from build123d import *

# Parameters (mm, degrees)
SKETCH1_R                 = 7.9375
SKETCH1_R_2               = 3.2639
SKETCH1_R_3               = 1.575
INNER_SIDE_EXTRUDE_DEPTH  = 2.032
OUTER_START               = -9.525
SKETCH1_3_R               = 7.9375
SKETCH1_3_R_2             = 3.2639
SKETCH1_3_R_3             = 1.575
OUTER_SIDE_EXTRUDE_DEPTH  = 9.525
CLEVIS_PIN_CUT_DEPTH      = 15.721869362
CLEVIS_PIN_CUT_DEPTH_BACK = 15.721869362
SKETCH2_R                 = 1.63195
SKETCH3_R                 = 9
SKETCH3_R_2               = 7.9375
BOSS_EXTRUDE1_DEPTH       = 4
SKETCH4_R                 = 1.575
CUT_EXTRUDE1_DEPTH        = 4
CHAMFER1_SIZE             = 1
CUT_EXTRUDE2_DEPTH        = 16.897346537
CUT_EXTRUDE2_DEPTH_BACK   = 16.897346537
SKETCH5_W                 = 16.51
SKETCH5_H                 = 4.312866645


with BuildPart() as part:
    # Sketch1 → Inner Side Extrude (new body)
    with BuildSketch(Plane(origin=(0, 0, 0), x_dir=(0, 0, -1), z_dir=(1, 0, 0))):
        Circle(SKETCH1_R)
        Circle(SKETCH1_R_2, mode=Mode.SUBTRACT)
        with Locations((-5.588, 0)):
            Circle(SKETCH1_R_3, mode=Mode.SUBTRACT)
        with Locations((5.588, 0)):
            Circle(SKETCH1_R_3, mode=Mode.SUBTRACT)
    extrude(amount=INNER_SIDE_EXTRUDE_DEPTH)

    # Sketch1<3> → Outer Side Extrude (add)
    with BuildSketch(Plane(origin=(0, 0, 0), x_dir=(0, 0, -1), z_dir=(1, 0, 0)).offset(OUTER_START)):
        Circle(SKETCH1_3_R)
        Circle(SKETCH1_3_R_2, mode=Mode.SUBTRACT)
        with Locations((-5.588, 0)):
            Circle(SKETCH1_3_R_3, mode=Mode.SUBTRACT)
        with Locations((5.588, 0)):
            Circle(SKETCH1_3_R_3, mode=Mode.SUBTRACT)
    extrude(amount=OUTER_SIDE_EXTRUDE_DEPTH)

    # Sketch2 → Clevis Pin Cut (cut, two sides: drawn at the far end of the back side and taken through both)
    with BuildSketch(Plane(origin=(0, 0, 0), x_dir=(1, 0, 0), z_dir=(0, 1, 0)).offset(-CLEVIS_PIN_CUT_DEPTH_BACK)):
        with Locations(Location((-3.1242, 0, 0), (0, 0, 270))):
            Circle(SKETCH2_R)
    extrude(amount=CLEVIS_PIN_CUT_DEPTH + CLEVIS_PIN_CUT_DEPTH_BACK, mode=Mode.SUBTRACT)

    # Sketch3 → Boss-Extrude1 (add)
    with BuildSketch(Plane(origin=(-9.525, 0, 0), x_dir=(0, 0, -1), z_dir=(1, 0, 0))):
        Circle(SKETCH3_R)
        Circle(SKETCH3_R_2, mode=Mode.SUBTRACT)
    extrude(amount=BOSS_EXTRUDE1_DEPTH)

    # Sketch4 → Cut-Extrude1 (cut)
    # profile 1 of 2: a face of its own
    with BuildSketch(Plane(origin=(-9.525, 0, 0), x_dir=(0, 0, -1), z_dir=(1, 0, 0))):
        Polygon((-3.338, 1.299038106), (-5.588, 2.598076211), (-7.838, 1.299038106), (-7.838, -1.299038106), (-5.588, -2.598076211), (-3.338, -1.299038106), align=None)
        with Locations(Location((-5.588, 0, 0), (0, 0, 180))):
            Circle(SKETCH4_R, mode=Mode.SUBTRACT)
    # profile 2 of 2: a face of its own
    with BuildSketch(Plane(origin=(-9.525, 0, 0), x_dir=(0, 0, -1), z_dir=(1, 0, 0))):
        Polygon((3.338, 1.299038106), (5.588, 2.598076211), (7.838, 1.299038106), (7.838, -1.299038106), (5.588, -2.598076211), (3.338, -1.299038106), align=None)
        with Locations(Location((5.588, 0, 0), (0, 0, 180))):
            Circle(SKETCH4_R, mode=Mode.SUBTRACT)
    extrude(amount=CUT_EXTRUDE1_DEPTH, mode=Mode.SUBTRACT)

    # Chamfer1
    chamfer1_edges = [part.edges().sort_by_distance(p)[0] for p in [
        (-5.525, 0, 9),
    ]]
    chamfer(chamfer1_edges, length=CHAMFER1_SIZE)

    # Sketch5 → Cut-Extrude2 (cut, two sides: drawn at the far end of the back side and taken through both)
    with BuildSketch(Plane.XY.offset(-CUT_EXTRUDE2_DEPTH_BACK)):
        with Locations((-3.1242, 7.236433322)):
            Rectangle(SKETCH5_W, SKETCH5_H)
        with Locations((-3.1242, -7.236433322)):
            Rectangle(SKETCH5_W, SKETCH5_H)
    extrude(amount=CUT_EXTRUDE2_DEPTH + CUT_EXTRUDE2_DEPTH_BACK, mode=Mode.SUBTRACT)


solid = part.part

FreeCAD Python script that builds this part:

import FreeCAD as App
import Part
import Sketcher

V = App.Vector
Q = App.Units.Quantity


def edges_at(feature, points):
    """Names of the edges that pass closest to the given points."""
    edges = feature.Shape.Edges
    near = lambda p: min(range(len(edges)), key=lambda i: edges[i].distToShape(Part.Vertex(*p))[0])
    return sorted({f"Edge{near(p) + 1}" for p in points})


def add_polygon(sketch, points):
    """Adds a closed chain of lines whose ends are joined by coincident constraints."""
    first, n = sketch.GeometryCount, len(points)
    for a, b in zip(points, points[1:] + points[:1]):
        sketch.addGeometry(Part.LineSegment(App.Vector(*a, 0), App.Vector(*b, 0)), False)
    for i in range(n):
        sketch.addConstraint(Sketcher.Constraint("Coincident", first + i, 2, first + (i + 1) % n, 1))

doc = App.newDocument("Part")
body = doc.addObject("PartDesign::Body", "Body")

# Sketch on YZ plane
sketch1 = body.newObject("Sketcher::SketchObject", "Sketch")
sketch1.AttachmentSupport = (doc.getObject("YZ_Plane"), [""])
sketch1.MapMode = "FlatFace"
sketch1.addGeometry(Part.Circle(V(0, 0, 0), V(0, 0, 1), 7.9), False)
sketch1.addGeometry(Part.Circle(V(0, 5.6, 0), V(0, 0, 1), 1.6), False)
sketch1.addGeometry(Part.Circle(V(0, 0, 0), V(0, 0, 1), 3.3), False)
sketch1.addGeometry(Part.Circle(V(0, -5.6, 0), V(0, 0, 1), 1.6), False)
sketch1.addConstraint(Sketcher.Constraint("Coincident", 0, 3, -1, 1))
sketch1.addConstraint(Sketcher.Constraint("Coincident", 2, 3, -1, 1))
sketch1.addConstraint(Sketcher.Constraint("Equal", 1, 3))
sketch1.addConstraint(Sketcher.Constraint("Symmetric", 1, 3, 3, 3, -1, 1))
sketch1.addConstraint(Sketcher.Constraint("PointOnObject", 1, 3, -2))
sketch1.addConstraint(Sketcher.Constraint("Diameter", 0, Q("0.625 in")))
sketch1.addConstraint(Sketcher.Constraint("Diameter", 2, Q("0.257 in")))
sketch1.addConstraint(Sketcher.Constraint("Diameter", 1, 3.15))
sketch1.addConstraint(Sketcher.Constraint("DistanceY", -1, 1, 1, 3, Q("0.22 in")))
pad1 = body.newObject("PartDesign::Pad", "Pad")
pad1.Profile = sketch1
pad1.Length = Q("0.08 in")

# Sketch on YZ plane
sketch2 = body.newObject("Sketcher::SketchObject", "Sketch001")
sketch2.AttachmentSupport = (doc.getObject("YZ_Plane"), [""])
sketch2.MapMode = "FlatFace"
sketch2.AttachmentOffset = App.Placement(V(0, 0, -0.375 * 25.4), App.Rotation())
sketch2.addGeometry(Part.Circle(V(0, 0, 0), V(0, 0, 1), 7.9), False)
sketch2.addGeometry(Part.Circle(V(0, 5.6, 0), V(0, 0, 1), 1.6), False)
sketch2.addGeometry(Part.Circle(V(0, 0, 0), V(0, 0, 1), 3.3), False)
sketch2.addGeometry(Part.Circle(V(0, -5.6, 0), V(0, 0, 1), 1.6), False)
sketch2.addConstraint(Sketcher.Constraint("Coincident", 0, 3, -1, 1))
sketch2.addConstraint(Sketcher.Constraint("Coincident", 2, 3, -1, 1))
sketch2.addConstraint(Sketcher.Constraint("Equal", 1, 3))
sketch2.addConstraint(Sketcher.Constraint("Symmetric", 1, 3, 3, 3, -1, 1))
sketch2.addConstraint(Sketcher.Constraint("PointOnObject", 1, 3, -2))
sketch2.addConstraint(Sketcher.Constraint("Diameter", 0, Q("0.625 in")))
sketch2.addConstraint(Sketcher.Constraint("Diameter", 2, Q("0.257 in")))
sketch2.addConstraint(Sketcher.Constraint("Diameter", 1, 3.15))
sketch2.addConstraint(Sketcher.Constraint("DistanceY", -1, 1, 1, 3, Q("0.22 in")))
pad2 = body.newObject("PartDesign::Pad", "Pad001")
pad2.Profile = sketch2
pad2.Length = Q("0.375 in")

# Sketch on XZ plane
sketch3 = body.newObject("Sketcher::SketchObject", "Sketch002")
sketch3.AttachmentSupport = (doc.getObject("XZ_Plane"), [""])
sketch3.MapMode = "FlatFace"
sketch3.addGeometry(Part.Circle(V(-3.1, 0, 0), V(0, 0, 1), 1.6), False)
sketch3.addConstraint(Sketcher.Constraint("PointOnObject", 0, 3, -1))
sketch3.addConstraint(Sketcher.Constraint("Diameter", 0, Q("0.1285 in")))
sketch3.addConstraint(Sketcher.Constraint("DistanceX", 0, 3, -1, 1, Q("0.123 in")))
pocket1 = body.newObject("PartDesign::Pocket", "Pocket")
pocket1.Profile = sketch3
pocket1.Type = "ThroughAll"
pocket1.Midplane = True

# Sketch on YZ plane
sketch4 = body.newObject("Sketcher::SketchObject", "Sketch003")
sketch4.AttachmentSupport = (doc.getObject("YZ_Plane"), [""])
sketch4.MapMode = "FlatFace"
sketch4.AttachmentOffset = App.Placement(V(0, 0, -0.375 * 25.4), App.Rotation())
sketch4.addGeometry(Part.Circle(V(0, 0, 0), V(0, 0, 1), 9), False)
sketch4.addGeometry(Part.Circle(V(0, 0, 0), V(0, 0, 1), 8), False)
sketch4.addConstraint(Sketcher.Constraint("Coincident", 0, 3, -1, 1))
sketch4.addConstraint(Sketcher.Constraint("Coincident", 1, 3, -1, 1))
sketch4.addConstraint(Sketcher.Constraint("Diameter", 1, Q("0.625 in")))
sketch4.addConstraint(Sketcher.Constraint("Diameter", 0, 18.0))
pad3 = body.newObject("PartDesign::Pad", "Pad002")
pad3.Profile = sketch4
pad3.Length = 4

# Sketch on YZ plane
sketch5 = body.newObject("Sketcher::SketchObject", "Sketch004")
sketch5.AttachmentSupport = (doc.getObject("YZ_Plane"), [""])
sketch5.MapMode = "FlatFace"
sketch5.AttachmentOffset = App.Placement(V(0, 0, -0.375 * 25.4), App.Rotation())
add_polygon(sketch5, [(1.3, 3.3), (2.6, 5.6), (1.3, 7.8), (-1.3, 7.8), (-2.6, 5.6), (-1.3, 3.3)])  # lines 0-5
sketch5.addGeometry(Part.Circle(V(0, 5.6, 0), V(0, 0, 1), 1.6), False)  # 6
add_polygon(sketch5, [(2.6, -5.6), (1.3, -3.3), (-1.3, -3.3), (-2.6, -5.6), (-1.3, -7.8), (1.3, -7.8)])  # lines 7-12
sketch5.addGeometry(Part.Circle(V(0, -5.6, 0), V(0, 0, 1), 1.6), False)  # 13
sketch5.addConstraint(Sketcher.Constraint("Horizontal", 2))
sketch5.addConstraint(Sketcher.Constraint("Horizontal", 5))
sketch5.addConstraint(Sketcher.Constraint("Horizontal", 8))
sketch5.addConstraint(Sketcher.Constraint("Horizontal", 11))
sketch5.addConstraint(Sketcher.Constraint("Equal", 6, 13))
sketch5.addConstraint(Sketcher.Constraint("Symmetric", 6, 3, 13, 3, -1, 1))
sketch5.addConstraint(Sketcher.Constraint("Symmetric", 4, 2, 7, 2, -1, 1))
sketch5.addConstraint(Sketcher.Constraint("Symmetric", 0, 2, 9, 2, -1, 1))
sketch5.addConstraint(Sketcher.Constraint("Symmetric", 1, 2, 10, 2, -1, 1))
sketch5.addConstraint(Sketcher.Constraint("Symmetric", 3, 2, 12, 2, -1, 1))
sketch5.addConstraint(Sketcher.Constraint("Symmetric", 0, 2, 3, 2, -2))
sketch5.addConstraint(Sketcher.Constraint("PointOnObject", 6, 3, -2))
sketch5.addConstraint(Sketcher.Constraint("Parallel", 0, 3))
sketch5.addConstraint(Sketcher.Constraint("Parallel", 1, 4))
sketch5.addConstraint(Sketcher.Constraint("Parallel", 3, 9))
sketch5.addConstraint(Sketcher.Constraint("Parallel", 9, 12))
sketch5.addConstraint(Sketcher.Constraint("Horizontal", 6, 3, 0, 2))
sketch5.addConstraint(Sketcher.Constraint("Vertical", 2, 2, 4, 2))
sketch5.addConstraint(Sketcher.Constraint("Vertical", 1, 2, 5, 2))
sketch5.addConstraint(Sketcher.Constraint("Angle", 0, Q("60 deg")))
sketch5.addConstraint(Sketcher.Constraint("Diameter", 6, 3.15))
sketch5.addConstraint(Sketcher.Constraint("DistanceY", -1, 1, 6, 3, Q("0.22 in")))
sketch5.addConstraint(Sketcher.Constraint("DistanceY", -1, 1, 1, 2, 7.838))
sketch5.addConstraint(Sketcher.Constraint("DistanceX", 2, 2, 2, 1, 2.598076))
pocket2 = body.newObject("PartDesign::Pocket", "Pocket001")
pocket2.Profile = sketch5
pocket2.Length = 4
pocket2.Reversed = True
doc.recompute()

chamfer = body.newObject("PartDesign::Chamfer", "Chamfer")
chamfer.Base = (pocket2, edges_at(pocket2, [(-5.525, 0, 9)]))
chamfer.Size = 1

# Sketch on XY plane
sketch6 = body.newObject("Sketcher::SketchObject", "Sketch005")
sketch6.AttachmentSupport = (doc.getObject("XY_Plane"), [""])
sketch6.MapMode = "FlatFace"
add_polygon(sketch6, [(-11.4, 9.4), (-11.4, 5.1), (5.1, 5.1), (5.1, 9.4)])  # lines 0-3
add_polygon(sketch6, [(-11.4, -5.1), (-11.4, -9.4), (5.1, -9.4), (5.1, -5.1)])  # lines 4-7
sketch6.addConstraint(Sketcher.Constraint("Vertical", 0))
sketch6.addConstraint(Sketcher.Constraint("Horizontal", 1))
sketch6.addConstraint(Sketcher.Constraint("Vertical", 2))
sketch6.addConstraint(Sketcher.Constraint("Horizontal", 3))
sketch6.addConstraint(Sketcher.Constraint("Vertical", 4))
sketch6.addConstraint(Sketcher.Constraint("Horizontal", 5))
sketch6.addConstraint(Sketcher.Constraint("Vertical", 6))
sketch6.addConstraint(Sketcher.Constraint("Horizontal", 7))
sketch6.addConstraint(Sketcher.Constraint("Symmetric", 3, 2, 4, 2, -1))
sketch6.addConstraint(Sketcher.Constraint("Symmetric", 1, 2, 6, 2, -1))
sketch6.addConstraint(Sketcher.Constraint("DistanceX", 1, 1, 1, 2, Q("0.65 in")))
sketch6.addConstraint(Sketcher.Constraint("DistanceY", -1, 1, 0, 2, Q("0.2 in")))
sketch6.addConstraint(Sketcher.Constraint("DistanceX", 0, 2, -1, 1, Q("0.448 in")))
sketch6.addConstraint(Sketcher.Constraint("DistanceY", 0, 2, 0, 1, 4.312867))
pocket3 = body.newObject("PartDesign::Pocket", "Pocket002")
pocket3.Profile = sketch6
pocket3.Type = "ThroughAll"
pocket3.Midplane = True

doc.recompute()
